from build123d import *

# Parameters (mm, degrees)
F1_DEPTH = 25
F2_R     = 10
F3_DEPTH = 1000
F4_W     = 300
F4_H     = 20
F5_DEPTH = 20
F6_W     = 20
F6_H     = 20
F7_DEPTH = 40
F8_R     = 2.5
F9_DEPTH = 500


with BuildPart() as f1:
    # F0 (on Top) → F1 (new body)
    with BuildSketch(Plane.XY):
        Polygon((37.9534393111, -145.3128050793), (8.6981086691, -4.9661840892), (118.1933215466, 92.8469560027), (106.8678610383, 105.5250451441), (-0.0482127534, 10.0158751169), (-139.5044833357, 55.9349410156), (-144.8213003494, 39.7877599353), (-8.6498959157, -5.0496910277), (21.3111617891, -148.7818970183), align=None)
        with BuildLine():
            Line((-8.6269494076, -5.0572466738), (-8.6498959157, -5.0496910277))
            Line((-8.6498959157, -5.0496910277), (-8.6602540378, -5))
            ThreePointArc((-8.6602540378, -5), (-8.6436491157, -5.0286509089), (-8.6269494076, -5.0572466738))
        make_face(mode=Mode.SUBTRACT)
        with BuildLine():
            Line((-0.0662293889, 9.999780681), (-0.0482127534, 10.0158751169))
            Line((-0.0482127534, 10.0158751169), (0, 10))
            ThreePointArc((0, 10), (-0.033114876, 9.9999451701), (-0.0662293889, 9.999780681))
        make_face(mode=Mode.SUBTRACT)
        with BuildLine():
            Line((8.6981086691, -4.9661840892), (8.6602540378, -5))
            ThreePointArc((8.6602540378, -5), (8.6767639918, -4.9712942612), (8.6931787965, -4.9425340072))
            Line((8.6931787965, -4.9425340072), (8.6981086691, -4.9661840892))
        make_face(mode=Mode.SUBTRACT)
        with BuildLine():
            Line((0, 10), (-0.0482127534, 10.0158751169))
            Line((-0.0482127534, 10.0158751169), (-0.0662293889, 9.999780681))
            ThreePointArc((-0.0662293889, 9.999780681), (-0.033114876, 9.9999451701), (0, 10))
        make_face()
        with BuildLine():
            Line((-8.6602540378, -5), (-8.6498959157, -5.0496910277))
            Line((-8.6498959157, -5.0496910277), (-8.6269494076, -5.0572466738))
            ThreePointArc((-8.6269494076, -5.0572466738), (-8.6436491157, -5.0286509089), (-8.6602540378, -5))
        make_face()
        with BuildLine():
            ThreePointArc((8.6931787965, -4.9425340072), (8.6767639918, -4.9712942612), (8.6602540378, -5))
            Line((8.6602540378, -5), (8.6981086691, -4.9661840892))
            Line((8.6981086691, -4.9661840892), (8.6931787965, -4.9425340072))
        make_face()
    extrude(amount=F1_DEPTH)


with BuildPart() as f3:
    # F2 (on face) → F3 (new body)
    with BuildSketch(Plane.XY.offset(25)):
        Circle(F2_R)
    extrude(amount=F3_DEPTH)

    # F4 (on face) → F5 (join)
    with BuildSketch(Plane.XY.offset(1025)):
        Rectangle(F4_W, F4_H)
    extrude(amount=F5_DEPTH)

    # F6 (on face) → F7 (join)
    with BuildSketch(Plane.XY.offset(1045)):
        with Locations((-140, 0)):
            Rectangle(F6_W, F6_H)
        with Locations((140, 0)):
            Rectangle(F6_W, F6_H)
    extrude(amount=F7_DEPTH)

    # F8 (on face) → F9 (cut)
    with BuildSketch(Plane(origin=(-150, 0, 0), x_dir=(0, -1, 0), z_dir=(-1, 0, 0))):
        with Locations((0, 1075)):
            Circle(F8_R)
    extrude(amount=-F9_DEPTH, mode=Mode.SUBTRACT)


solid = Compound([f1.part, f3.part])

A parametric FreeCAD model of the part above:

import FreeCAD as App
import Part
import Sketcher
from FreeCAD import Vector
Q = App.Units.Quantity

doc = App.newDocument("Part")
body = doc.addObject("PartDesign::Body", "Body")

# Sketch on XY plane
sketch1 = doc.addObject("Sketcher::SketchObject", "Sketch")
body.addObject(sketch1)
sketch1.AttachmentSupport = (doc.XY_Plane, [""])
sketch1.MapMode = "FlatFace"
sketch1.addGeometry(Part.LineSegment(Vector(37.953439, -145.312805, 0), Vector(8.698109, -4.966184, 0)), False)
sketch1.addGeometry(Part.LineSegment(Vector(8.698109, -4.966184, 0), Vector(118.193322, 92.846956, 0)), False)
sketch1.addGeometry(Part.LineSegment(Vector(118.193322, 92.846956, 0), Vector(106.867861, 105.525045, 0)), False)
sketch1.addGeometry(Part.LineSegment(Vector(106.867861, 105.525045, 0), Vector(-0.048213, 10.015875, 0)), False)
sketch1.addGeometry(Part.LineSegment(Vector(-0.048213, 10.015875, 0), Vector(-139.504483, 55.934941, 0)), False)
sketch1.addGeometry(Part.LineSegment(Vector(-139.504483, 55.934941, 0), Vector(-144.8213, 39.78776, 0)), False)
sketch1.addGeometry(Part.LineSegment(Vector(-144.8213, 39.78776, 0), Vector(-8.649896, -5.049691, 0)), False)
sketch1.addGeometry(Part.LineSegment(Vector(-8.649896, -5.049691, 0), Vector(21.311162, -148.781897, 0)), False)
sketch1.addGeometry(Part.LineSegment(Vector(21.311162, -148.781897, 0), Vector(37.953439, -145.312805, 0)), False)
sketch1.addConstraint(Sketcher.Constraint("Coincident", 0, 2, 1, 1))
sketch1.addConstraint(Sketcher.Constraint("Coincident", 1, 2, 2, 1))
sketch1.addConstraint(Sketcher.Constraint("Coincident", 2, 2, 3, 1))
sketch1.addConstraint(Sketcher.Constraint("Coincident", 3, 2, 4, 1))
sketch1.addConstraint(Sketcher.Constraint("Coincident", 4, 2, 5, 1))
sketch1.addConstraint(Sketcher.Constraint("Coincident", 5, 2, 6, 1))
sketch1.addConstraint(Sketcher.Constraint("Coincident", 6, 2, 7, 1))
sketch1.addConstraint(Sketcher.Constraint("Coincident", 7, 2, 8, 1))
sketch1.addConstraint(Sketcher.Constraint("Coincident", 8, 2, 0, 1))
sketch1.addConstraint(Sketcher.Constraint("Perpendicular", 1, 2))
sketch1.addConstraint(Sketcher.Constraint("Perpendicular", 2, 3))
sketch1.addConstraint(Sketcher.Constraint("Perpendicular", 4, 5))
sketch1.addConstraint(Sketcher.Constraint("Perpendicular", 5, 6))
sketch1.addConstraint(Sketcher.Constraint("Parallel", 0, 7))
sketch1.addConstraint(Sketcher.Constraint("Perpendicular", 7, 8))
sketch1.addConstraint(Sketcher.Constraint("Equal", 0, 3))
sketch1.addConstraint(Sketcher.Constraint("Equal", 1, 4))
sketch1.addConstraint(Sketcher.Constraint("Equal", 2, 5))
sketch1.addConstraint(Sketcher.Constraint("Equal", 3, 6))
sketch1.addConstraint(Sketcher.Constraint("Equal", 4, 7))
sketch1.addConstraint(Sketcher.Constraint("Equal", 5, 8))
sketch1.addConstraint(Sketcher.Constraint("Distance", 2, Q("17 mm")))
sketch1.addConstraint(Sketcher.Constraint("Distance", 1, Q("146.821701 mm")))
sketch1.addConstraint(Sketcher.Constraint("DistanceX", 5, 2, -1, 1, Q("144.8213 mm")))
sketch1.addConstraint(Sketcher.Constraint("DistanceX", -1, 1, 0, 2, Q("8.698109 mm")))
sketch1.addConstraint(Sketcher.Constraint("DistanceX", -1, 1, 1, 2, Q("118.193322 mm")))
sketch1.addConstraint(Sketcher.Constraint("DistanceY", -1, 1, 4, 2, Q("55.934941 mm")))
pad1 = doc.addObject("PartDesign::Pad", "Pad")
body.addObject(pad1)
pad1.Profile = sketch1
pad1.Length = 25
body2 = doc.addObject("PartDesign::Body", "Body001")

# Sketch on XY plane
sketch2 = doc.addObject("Sketcher::SketchObject", "Sketch001")
body2.addObject(sketch2)
sketch2.AttachmentSupport = (doc.getObject("XY_Plane001"), [""])
sketch2.MapMode = "FlatFace"
sketch2.AttachmentOffset = App.Placement(Vector(0, 0, 25), App.Rotation())
sketch2.addGeometry(Part.Circle(Vector(0, 0, 0), Vector(0, 0, 1), 10), False)
sketch2.addConstraint(Sketcher.Constraint("Coincident", 0, 3, -1, 1))
sketch2.addConstraint(Sketcher.Constraint("Diameter", 0, Q("20 mm")))
pad2 = doc.addObject("PartDesign::Pad", "Pad001")
body2.addObject(pad2)
pad2.Profile = sketch2
pad2.Length = 1000

# Sketch on XY plane
sketch3 = doc.addObject("Sketcher::SketchObject", "Sketch002")
body2.addObject(sketch3)
sketch3.AttachmentSupport = (doc.getObject("XY_Plane001"), [""])
sketch3.MapMode = "FlatFace"
sketch3.AttachmentOffset = App.Placement(Vector(0, 0, 1025), App.Rotation())
sketch3.addGeometry(Part.LineSegment(Vector(-150, 10, 0), Vector(-150, -10, 0)), False)
sketch3.addGeometry(Part.LineSegment(Vector(-150, -10, 0), Vector(150, -10, 0)), False)
sketch3.addGeometry(Part.LineSegment(Vector(150, -10, 0), Vector(150, 10, 0)), False)
sketch3.addGeometry(Part.LineSegment(Vector(150, 10, 0), Vector(-150, 10, 0)), False)
sketch3.addConstraint(Sketcher.Constraint("Coincident", 0, 2, 1, 1))
sketch3.addConstraint(Sketcher.Constraint("Coincident", 1, 2, 2, 1))
sketch3.addConstraint(Sketcher.Constraint("Coincident", 2, 2, 3, 1))
sketch3.addConstraint(Sketcher.Constraint("Coincident", 3, 2, 0, 1))
sketch3.addConstraint(Sketcher.Constraint("Vertical", 0))
sketch3.addConstraint(Sketcher.Constraint("Horizontal", 1))
sketch3.addConstraint(Sketcher.Constraint("Vertical", 2))
sketch3.addConstraint(Sketcher.Constraint("Horizontal", 3))
sketch3.addConstraint(Sketcher.Constraint("Symmetric", 0, 2, 2, 2, -1, 1))
sketch3.addConstraint(Sketcher.Constraint("DistanceX", 1, 1, 1, 2, Q("300 mm")))
sketch3.addConstraint(Sketcher.Constraint("DistanceY", 0, 2, 0, 1, Q("20 mm")))
pad3 = doc.addObject("PartDesign::Pad", "Pad002")
body2.addObject(pad3)
pad3.Profile = sketch3
pad3.Length = 20

# Sketch on XY plane
sketch4 = doc.addObject("Sketcher::SketchObject", "Sketch003")
body2.addObject(sketch4)
sketch4.AttachmentSupport = (doc.getObject("XY_Plane001"), [""])
sketch4.MapMode = "FlatFace"
sketch4.AttachmentOffset = App.Placement(Vector(0, 0, 1045), App.Rotation())
sketch4.addGeometry(Part.LineSegment(Vector(-150, 10, 0), Vector(-150, -10, 0)), False)
sketch4.addGeometry(Part.LineSegment(Vector(-150, -10, 0), Vector(-130, -10, 0)), False)
sketch4.addGeometry(Part.LineSegment(Vector(-130, -10, 0), Vector(-130, 10, 0)), False)
sketch4.addGeometry(Part.LineSegment(Vector(-130, 10, 0), Vector(-150, 10, 0)), False)
sketch4.addGeometry(Part.LineSegment(Vector(130, 10, 0), Vector(130, -10, 0)), False)
sketch4.addGeometry(Part.LineSegment(Vector(130, -10, 0), Vector(150, -10, 0)), False)
sketch4.addGeometry(Part.LineSegment(Vector(150, -10, 0), Vector(150, 10, 0)), False)
sketch4.addGeometry(Part.LineSegment(Vector(150, 10, 0), Vector(130, 10, 0)), False)
sketch4.addConstraint(Sketcher.Constraint("Coincident", 0, 2, 1, 1))
sketch4.addConstraint(Sketcher.Constraint("Coincident", 1, 2, 2, 1))
sketch4.addConstraint(Sketcher.Constraint("Coincident", 2, 2, 3, 1))
sketch4.addConstraint(Sketcher.Constraint("Coincident", 3, 2, 0, 1))
sketch4.addConstraint(Sketcher.Constraint("Coincident", 4, 2, 5, 1))
sketch4.addConstraint(Sketcher.Constraint("Coincident", 5, 2, 6, 1))
sketch4.addConstraint(Sketcher.Constraint("Coincident", 6, 2, 7, 1))
sketch4.addConstraint(Sketcher.Constraint("Coincident", 7, 2, 4, 1))
sketch4.addConstraint(Sketcher.Constraint("Vertical", 0))
sketch4.addConstraint(Sketcher.Constraint("Horizontal", 1))
sketch4.addConstraint(Sketcher.Constraint("Vertical", 2))
sketch4.addConstraint(Sketcher.Constraint("Horizontal", 3))
sketch4.addConstraint(Sketcher.Constraint("Vertical", 4))
sketch4.addConstraint(Sketcher.Constraint("Horizontal", 5))
sketch4.addConstraint(Sketcher.Constraint("Vertical", 6))
sketch4.addConstraint(Sketcher.Constraint("Horizontal", 7))
sketch4.addConstraint(Sketcher.Constraint("Symmetric", 2, 2, 4, 2, -1, 1))
sketch4.addConstraint(Sketcher.Constraint("Symmetric", 0, 2, 6, 2, -1, 1))
sketch4.addConstraint(Sketcher.Constraint("Horizontal", 1, 2, 4, 2))
sketch4.addConstraint(Sketcher.Constraint("Equal", 7, 0))
sketch4.addConstraint(Sketcher.Constraint("DistanceX", 1, 1, 1, 2, Q("20 mm")))
sketch4.addConstraint(Sketcher.Constraint("DistanceX", 0, 2, -1, 1, Q("150 mm")))
pad4 = doc.addObject("PartDesign::Pad", "Pad003")
body2.addObject(pad4)
pad4.Profile = sketch4
pad4.Length = 40

# Sketch on YZ plane
sketch5 = doc.addObject("Sketcher::SketchObject", "Sketch004")
body2.addObject(sketch5)
sketch5.AttachmentSupport = (doc.getObject("YZ_Plane001"), [""])
sketch5.MapMode = "FlatFace"
sketch5.AttachmentOffset = App.Placement(Vector(0, 0, -150), App.Rotation())
sketch5.addGeometry(Part.Circle(Vector(0, 1075, 0), Vector(0, 0, 1), 2.5), False)
sketch5.addConstraint(Sketcher.Constraint("PointOnObject", 0, 3, -2))
sketch5.addConstraint(Sketcher.Constraint("Diameter", 0, Q("5 mm")))
sketch5.addConstraint(Sketcher.Constraint("DistanceY", -1, 1, 0, 3, Q("1075 mm")))
pocket1 = doc.addObject("PartDesign::Pocket", "Pocket")
body2.addObject(pocket1)
pocket1.Profile = sketch5
pocket1.Length = 500
pocket1.Reversed = True

doc.recompute()
